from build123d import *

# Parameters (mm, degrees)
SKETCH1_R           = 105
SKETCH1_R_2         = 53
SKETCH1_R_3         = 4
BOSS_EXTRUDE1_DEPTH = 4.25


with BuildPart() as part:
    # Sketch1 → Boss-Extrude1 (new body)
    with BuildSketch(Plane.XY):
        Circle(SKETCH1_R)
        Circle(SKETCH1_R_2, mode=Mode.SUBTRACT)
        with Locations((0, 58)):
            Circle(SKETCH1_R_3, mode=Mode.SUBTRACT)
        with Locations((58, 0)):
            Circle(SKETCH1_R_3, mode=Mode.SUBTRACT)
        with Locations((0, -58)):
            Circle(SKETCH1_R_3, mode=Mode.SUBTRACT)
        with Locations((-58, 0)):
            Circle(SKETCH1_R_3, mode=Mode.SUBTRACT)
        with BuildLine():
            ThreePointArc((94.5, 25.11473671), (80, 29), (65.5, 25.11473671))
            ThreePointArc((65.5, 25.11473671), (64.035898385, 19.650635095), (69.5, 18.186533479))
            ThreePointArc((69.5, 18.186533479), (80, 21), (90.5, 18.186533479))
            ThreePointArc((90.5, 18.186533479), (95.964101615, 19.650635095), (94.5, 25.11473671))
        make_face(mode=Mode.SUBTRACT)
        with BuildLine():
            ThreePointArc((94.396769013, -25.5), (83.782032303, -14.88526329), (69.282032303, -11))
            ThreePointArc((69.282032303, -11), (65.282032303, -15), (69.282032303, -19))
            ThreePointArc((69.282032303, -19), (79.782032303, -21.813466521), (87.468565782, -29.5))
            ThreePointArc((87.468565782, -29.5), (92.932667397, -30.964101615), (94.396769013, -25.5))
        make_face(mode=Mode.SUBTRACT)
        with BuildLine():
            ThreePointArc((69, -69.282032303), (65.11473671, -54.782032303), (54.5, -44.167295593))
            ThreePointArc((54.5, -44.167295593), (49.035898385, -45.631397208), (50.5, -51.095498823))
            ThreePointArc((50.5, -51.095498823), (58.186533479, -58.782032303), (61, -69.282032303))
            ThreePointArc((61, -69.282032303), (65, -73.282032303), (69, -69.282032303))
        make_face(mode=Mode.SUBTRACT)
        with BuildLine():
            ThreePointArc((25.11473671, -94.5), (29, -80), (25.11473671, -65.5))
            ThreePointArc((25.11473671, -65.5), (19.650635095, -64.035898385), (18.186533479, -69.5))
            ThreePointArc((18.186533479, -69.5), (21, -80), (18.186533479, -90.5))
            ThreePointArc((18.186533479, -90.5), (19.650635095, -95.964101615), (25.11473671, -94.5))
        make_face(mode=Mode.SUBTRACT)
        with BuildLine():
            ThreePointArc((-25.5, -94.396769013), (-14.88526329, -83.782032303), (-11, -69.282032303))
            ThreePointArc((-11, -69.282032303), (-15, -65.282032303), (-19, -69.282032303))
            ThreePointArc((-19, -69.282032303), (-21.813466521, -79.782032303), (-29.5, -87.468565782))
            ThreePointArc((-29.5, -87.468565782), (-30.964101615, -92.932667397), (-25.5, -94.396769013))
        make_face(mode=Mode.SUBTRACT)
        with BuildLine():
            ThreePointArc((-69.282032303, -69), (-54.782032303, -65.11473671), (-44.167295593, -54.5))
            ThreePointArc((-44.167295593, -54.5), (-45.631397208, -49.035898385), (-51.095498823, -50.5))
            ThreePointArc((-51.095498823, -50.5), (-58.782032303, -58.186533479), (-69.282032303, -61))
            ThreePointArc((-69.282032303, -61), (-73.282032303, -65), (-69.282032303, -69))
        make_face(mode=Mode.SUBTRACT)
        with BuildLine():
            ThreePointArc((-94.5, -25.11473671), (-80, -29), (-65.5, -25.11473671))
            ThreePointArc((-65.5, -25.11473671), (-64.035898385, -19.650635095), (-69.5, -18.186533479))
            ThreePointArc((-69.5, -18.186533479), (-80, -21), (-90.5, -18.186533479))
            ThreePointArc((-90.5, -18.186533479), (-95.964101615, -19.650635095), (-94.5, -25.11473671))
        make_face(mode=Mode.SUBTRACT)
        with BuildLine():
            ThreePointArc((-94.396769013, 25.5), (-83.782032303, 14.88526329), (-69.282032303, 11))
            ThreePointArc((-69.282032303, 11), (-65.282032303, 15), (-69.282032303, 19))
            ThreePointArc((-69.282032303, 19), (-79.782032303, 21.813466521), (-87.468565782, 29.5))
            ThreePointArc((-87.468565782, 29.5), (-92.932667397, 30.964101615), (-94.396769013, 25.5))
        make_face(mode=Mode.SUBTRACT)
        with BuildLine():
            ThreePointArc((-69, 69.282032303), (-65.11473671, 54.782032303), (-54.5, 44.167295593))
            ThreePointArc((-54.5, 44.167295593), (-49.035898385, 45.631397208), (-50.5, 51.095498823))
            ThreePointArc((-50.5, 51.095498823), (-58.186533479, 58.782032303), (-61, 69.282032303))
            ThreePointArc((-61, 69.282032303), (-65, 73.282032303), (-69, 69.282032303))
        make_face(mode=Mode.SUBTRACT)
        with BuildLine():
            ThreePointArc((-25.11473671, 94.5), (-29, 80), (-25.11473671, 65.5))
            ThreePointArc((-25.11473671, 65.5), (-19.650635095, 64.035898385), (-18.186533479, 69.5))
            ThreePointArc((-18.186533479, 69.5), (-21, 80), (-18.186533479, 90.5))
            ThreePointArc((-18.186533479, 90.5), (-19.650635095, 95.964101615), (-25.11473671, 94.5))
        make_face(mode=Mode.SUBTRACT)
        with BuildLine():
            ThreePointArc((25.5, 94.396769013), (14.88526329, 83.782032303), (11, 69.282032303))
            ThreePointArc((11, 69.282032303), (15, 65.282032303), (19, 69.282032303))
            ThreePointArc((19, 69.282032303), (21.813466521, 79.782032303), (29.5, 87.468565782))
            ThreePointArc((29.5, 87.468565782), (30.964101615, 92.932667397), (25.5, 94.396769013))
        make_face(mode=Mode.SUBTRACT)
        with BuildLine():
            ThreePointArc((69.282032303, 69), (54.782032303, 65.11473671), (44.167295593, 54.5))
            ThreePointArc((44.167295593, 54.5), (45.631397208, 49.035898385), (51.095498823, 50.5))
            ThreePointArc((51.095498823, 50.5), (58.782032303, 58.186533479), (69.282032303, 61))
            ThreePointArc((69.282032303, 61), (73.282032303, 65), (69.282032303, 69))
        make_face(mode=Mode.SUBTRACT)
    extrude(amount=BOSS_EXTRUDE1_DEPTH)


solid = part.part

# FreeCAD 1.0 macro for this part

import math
import FreeCAD as App
import Part
import Sketcher

doc = App.newDocument("Part")
body = doc.addObject("PartDesign::Body", "Body")

# Sketch on XY plane
sketch1 = doc.addObject("Sketcher::SketchObject", "Sketch")
body.addObject(sketch1)
sketch1.AttachmentSupport = (doc.XY_Plane, [""])
sketch1.MapMode = "FlatFace"
sketch1.addGeometry(Part.Circle(App.Vector(0, 0, 0), App.Vector(0, 0, 1), 105), False)
sketch1.addGeometry(Part.ArcOfCircle(Part.Circle(App.Vector(-69.3, -40, 0), App.Vector(0, 0, 1), 29), math.radians(-90), math.radians(-30)), False)
sketch1.addGeometry(Part.ArcOfCircle(Part.Circle(App.Vector(-69.3, -65, 0), App.Vector(0, 0, 1), 4), math.radians(90), math.radians(270)), False)
sketch1.addGeometry(Part.ArcOfCircle(Part.Circle(App.Vector(-69.3, -40, 0), App.Vector(0, 0, 1), 21), math.radians(-90), math.radians(-30)), False)
sketch1.addGeometry(Part.ArcOfCircle(Part.Circle(App.Vector(-47.6, -52.5, 0), App.Vector(0, 0, 1), 4), math.radians(-30), math.radians(150)), False)
sketch1.addGeometry(Part.ArcOfCircle(Part.Circle(App.Vector(-40, -69.3, 0), App.Vector(0, 0, 1), 29), math.radians(-60), math.radians(0)), False)
sketch1.addGeometry(Part.ArcOfCircle(Part.Circle(App.Vector(-27.5, -90.9, 0), App.Vector(0, 0, 1), 4), math.radians(120), math.radians(300)), False)
sketch1.addGeometry(Part.ArcOfCircle(Part.Circle(App.Vector(-40, -69.3, 0), App.Vector(0, 0, 1), 21), math.radians(-60), math.radians(0)), False)
sketch1.addGeometry(Part.ArcOfCircle(Part.Circle(App.Vector(-15, -69.3, 0), App.Vector(0, 0, 1), 4), math.radians(0), math.radians(180)), False)
sketch1.addGeometry(Part.ArcOfCircle(Part.Circle(App.Vector(-80, 0, 0), App.Vector(0, 0, 1), 29), math.radians(-120), math.radians(-60)), False)
sketch1.addGeometry(Part.ArcOfCircle(Part.Circle(App.Vector(-92.5, -21.7, 0), App.Vector(0, 0, 1), 4), math.radians(60), math.radians(240)), False)
sketch1.addGeometry(Part.ArcOfCircle(Part.Circle(App.Vector(-80, 0, 0), App.Vector(0, 0, 1), 21), math.radians(-120), math.radians(-60)), False)
sketch1.addGeometry(Part.ArcOfCircle(Part.Circle(App.Vector(-67.5, -21.7, 0), App.Vector(0, 0, 1), 4), math.radians(-60), math.radians(120)), False)
sketch1.addGeometry(Part.ArcOfCircle(Part.Circle(App.Vector(0, -80, 0), App.Vector(0, 0, 1), 29), math.radians(-30), math.radians(30)), False)
sketch1.addGeometry(Part.ArcOfCircle(Part.Circle(App.Vector(21.7, -92.5, 0), App.Vector(0, 0, 1), 4), math.radians(150), math.radians(330)), False)
sketch1.addGeometry(Part.ArcOfCircle(Part.Circle(App.Vector(0, -80, 0), App.Vector(0, 0, 1), 21), math.radians(-30), math.radians(30)), False)
sketch1.addGeometry(Part.ArcOfCircle(Part.Circle(App.Vector(21.7, -67.5, 0), App.Vector(0, 0, 1), 4), math.radians(30), math.radians(210)), False)
sketch1.addGeometry(Part.Circle(App.Vector(0, -58, 0), App.Vector(0, 0, 1), 4), False)
sketch1.addGeometry(Part.ArcOfCircle(Part.Circle(App.Vector(40, -69.3, 0), App.Vector(0, 0, 1), 29), math.radians(0), math.radians(60)), False)
sketch1.addGeometry(Part.ArcOfCircle(Part.Circle(App.Vector(65, -69.3, 0), App.Vector(0, 0, 1), 4), math.radians(180), math.radians(360)), False)
sketch1.addGeometry(Part.ArcOfCircle(Part.Circle(App.Vector(40, -69.3, 0), App.Vector(0, 0, 1), 21), math.radians(0), math.radians(60)), False)
sketch1.addGeometry(Part.ArcOfCircle(Part.Circle(App.Vector(52.5, -47.6, 0), App.Vector(0, 0, 1), 4), math.radians(60), math.radians(240)), False)
sketch1.addGeometry(Part.ArcOfCircle(Part.Circle(App.Vector(69.3, -40, 0), App.Vector(0, 0, 1), 29), math.radians(30), math.radians(90)), False)
sketch1.addGeometry(Part.ArcOfCircle(Part.Circle(App.Vector(90.9, -27.5, 0), App.Vector(0, 0, 1), 4), math.radians(-150), math.radians(30)), False)
sketch1.addGeometry(Part.ArcOfCircle(Part.Circle(App.Vector(69.3, -40, 0), App.Vector(0, 0, 1), 21), math.radians(30), math.radians(90)), False)
sketch1.addGeometry(Part.ArcOfCircle(Part.Circle(App.Vector(69.3, -15, 0), App.Vector(0, 0, 1), 4), math.radians(90), math.radians(270)), False)
sketch1.addGeometry(Part.ArcOfCircle(Part.Circle(App.Vector(-69.3, 40, 0), App.Vector(0, 0, 1), 29), math.radians(-150), math.radians(-90)), False)
sketch1.addGeometry(Part.ArcOfCircle(Part.Circle(App.Vector(-90.9, 27.5, 0), App.Vector(0, 0, 1), 4), math.radians(30), math.radians(210)), False)
sketch1.addGeometry(Part.ArcOfCircle(Part.Circle(App.Vector(-69.3, 40, 0), App.Vector(0, 0, 1), 21), math.radians(-150), math.radians(-90)), False)
sketch1.addGeometry(Part.ArcOfCircle(Part.Circle(App.Vector(-69.3, 15, 0), App.Vector(0, 0, 1), 4), math.radians(-90), math.radians(90)), False)
sketch1.addGeometry(Part.Circle(App.Vector(-58, 0, 0), App.Vector(0, 0, 1), 4), False)
sketch1.addGeometry(Part.ArcOfCircle(Part.Circle(App.Vector(-40, 69.3, 0), App.Vector(0, 0, 1), 29), math.radians(180), math.radians(240)), False)
sketch1.addGeometry(Part.ArcOfCircle(Part.Circle(App.Vector(-65, 69.3, 0), App.Vector(0, 0, 1), 4), math.radians(0), math.radians(180)), False)
sketch1.addGeometry(Part.ArcOfCircle(Part.Circle(App.Vector(-40, 69.3, 0), App.Vector(0, 0, 1), 21), math.radians(-180), math.radians(-120)), False)
sketch1.addGeometry(Part.ArcOfCircle(Part.Circle(App.Vector(-52.5, 47.6, 0), App.Vector(0, 0, 1), 4), math.radians(-120), math.radians(60)), False)
sketch1.addGeometry(Part.ArcOfCircle(Part.Circle(App.Vector(0, 80, 0), App.Vector(0, 0, 1), 29), math.radians(150), math.radians(210)), False)
sketch1.addGeometry(Part.ArcOfCircle(Part.Circle(App.Vector(-21.7, 92.5, 0), App.Vector(0, 0, 1), 4), math.radians(-30), math.radians(150)), False)
sketch1.addGeometry(Part.ArcOfCircle(Part.Circle(App.Vector(0, 80, 0), App.Vector(0, 0, 1), 21), math.radians(150), math.radians(210)), False)
sketch1.addGeometry(Part.ArcOfCircle(Part.Circle(App.Vector(-21.7, 67.5, 0), App.Vector(0, 0, 1), 4), math.radians(-150), math.radians(30)), False)
sketch1.addGeometry(Part.Circle(App.Vector(0, 0, 0), App.Vector(0, 0, 1), 53), False)
sketch1.addGeometry(Part.Circle(App.Vector(58, 0, 0), App.Vector(0, 0, 1), 4), False)
sketch1.addGeometry(Part.ArcOfCircle(Part.Circle(App.Vector(80, 0, 0), App.Vector(0, 0, 1), 29), math.radians(60), math.radians(120)), False)
sketch1.addGeometry(Part.ArcOfCircle(Part.Circle(App.Vector(92.5, 21.7, 0), App.Vector(0, 0, 1), 4), math.radians(-120), math.radians(60)), False)
sketch1.addGeometry(Part.ArcOfCircle(Part.Circle(App.Vector(80, 0, 0), App.Vector(0, 0, 1), 21), math.radians(60), math.radians(120)), False)
sketch1.addGeometry(Part.ArcOfCircle(Part.Circle(App.Vector(67.5, 21.7, 0), App.Vector(0, 0, 1), 4), math.radians(120), math.radians(300)), False)
sketch1.addGeometry(Part.Circle(App.Vector(0, 58, 0), App.Vector(0, 0, 1), 4), False)
sketch1.addGeometry(Part.ArcOfCircle(Part.Circle(App.Vector(40, 69.3, 0), App.Vector(0, 0, 1), 29), math.radians(120), math.radians(180)), False)
sketch1.addGeometry(Part.ArcOfCircle(Part.Circle(App.Vector(27.5, 90.9, 0), App.Vector(0, 0, 1), 4), math.radians(-60), math.radians(120)), False)
sketch1.addGeometry(Part.ArcOfCircle(Part.Circle(App.Vector(40, 69.3, 0), App.Vector(0, 0, 1), 21), math.radians(120), math.radians(180)), False)
sketch1.addGeometry(Part.ArcOfCircle(Part.Circle(App.Vector(15, 69.3, 0), App.Vector(0, 0, 1), 4), math.radians(180), math.radians(360)), False)
sketch1.addGeometry(Part.ArcOfCircle(Part.Circle(App.Vector(69.3, 40, 0), App.Vector(0, 0, 1), 29), math.radians(90), math.radians(150)), False)
sketch1.addGeometry(Part.ArcOfCircle(Part.Circle(App.Vector(69.3, 65, 0), App.Vector(0, 0, 1), 4), math.radians(-90), math.radians(90)), False)
sketch1.addGeometry(Part.ArcOfCircle(Part.Circle(App.Vector(69.3, 40, 0), App.Vector(0, 0, 1), 21), math.radians(90), math.radians(150)), False)
sketch1.addGeometry(Part.ArcOfCircle(Part.Circle(App.Vector(47.6, 52.5, 0), App.Vector(0, 0, 1), 4), math.radians(150), math.radians(330)), False)
sketch1.addConstraint(Sketcher.Constraint("Tangent", 1, 1, 2, 2))
sketch1.addConstraint(Sketcher.Constraint("Tangent", 2, 1, 3, 1))
sketch1.addConstraint(Sketcher.Constraint("Tangent", 3, 2, 4, 2))
sketch1.addConstraint(Sketcher.Constraint("Tangent", 4, 1, 1, 2))
sketch1.addConstraint(Sketcher.Constraint("Tangent", 5, 1, 6, 2))
sketch1.addConstraint(Sketcher.Constraint("Tangent", 6, 1, 7, 1))
sketch1.addConstraint(Sketcher.Constraint("Tangent", 7, 2, 8, 2))
sketch1.addConstraint(Sketcher.Constraint("Tangent", 8, 1, 5, 2))
sketch1.addConstraint(Sketcher.Constraint("Tangent", 9, 1, 10, 2))
sketch1.addConstraint(Sketcher.Constraint("Tangent", 10, 1, 11, 1))
sketch1.addConstraint(Sketcher.Constraint("Tangent", 11, 2, 12, 2))
sketch1.addConstraint(Sketcher.Constraint("Tangent", 12, 1, 9, 2))
sketch1.addConstraint(Sketcher.Constraint("Tangent", 13, 1, 14, 2))
sketch1.addConstraint(Sketcher.Constraint("Tangent", 14, 1, 15, 1))
sketch1.addConstraint(Sketcher.Constraint("Tangent", 15, 2, 16, 2))
sketch1.addConstraint(Sketcher.Constraint("Tangent", 16, 1, 13, 2))
sketch1.addConstraint(Sketcher.Constraint("Tangent", 18, 1, 19, 2))
sketch1.addConstraint(Sketcher.Constraint("Tangent", 19, 1, 20, 1))
sketch1.addConstraint(Sketcher.Constraint("Tangent", 20, 2, 21, 2))
sketch1.addConstraint(Sketcher.Constraint("Tangent", 21, 1, 18, 2))
sketch1.addConstraint(Sketcher.Constraint("Tangent", 22, 1, 23, 2))
sketch1.addConstraint(Sketcher.Constraint("Tangent", 23, 1, 24, 1))
sketch1.addConstraint(Sketcher.Constraint("Tangent", 24, 2, 25, 2))
sketch1.addConstraint(Sketcher.Constraint("Tangent", 25, 1, 22, 2))
sketch1.addConstraint(Sketcher.Constraint("Tangent", 26, 1, 27, 2))
sketch1.addConstraint(Sketcher.Constraint("Tangent", 27, 1, 28, 1))
sketch1.addConstraint(Sketcher.Constraint("Tangent", 28, 2, 29, 2))
sketch1.addConstraint(Sketcher.Constraint("Tangent", 29, 1, 26, 2))
sketch1.addConstraint(Sketcher.Constraint("Tangent", 31, 1, 32, 2))
sketch1.addConstraint(Sketcher.Constraint("Tangent", 32, 1, 33, 1))
sketch1.addConstraint(Sketcher.Constraint("Tangent", 33, 2, 34, 2))
sketch1.addConstraint(Sketcher.Constraint("Tangent", 34, 1, 31, 2))
sketch1.addConstraint(Sketcher.Constraint("Tangent", 35, 1, 36, 2))
sketch1.addConstraint(Sketcher.Constraint("Tangent", 36, 1, 37, 1))
sketch1.addConstraint(Sketcher.Constraint("Tangent", 37, 2, 38, 2))
sketch1.addConstraint(Sketcher.Constraint("Tangent", 38, 1, 35, 2))
sketch1.addConstraint(Sketcher.Constraint("Tangent", 41, 1, 42, 2))
sketch1.addConstraint(Sketcher.Constraint("Tangent", 42, 1, 43, 1))
sketch1.addConstraint(Sketcher.Constraint("Tangent", 43, 2, 44, 2))
sketch1.addConstraint(Sketcher.Constraint("Tangent", 44, 1, 41, 2))
sketch1.addConstraint(Sketcher.Constraint("Tangent", 46, 1, 47, 2))
sketch1.addConstraint(Sketcher.Constraint("Tangent", 47, 1, 48, 1))
sketch1.addConstraint(Sketcher.Constraint("Tangent", 48, 2, 49, 2))
sketch1.addConstraint(Sketcher.Constraint("Tangent", 49, 1, 46, 2))
sketch1.addConstraint(Sketcher.Constraint("Tangent", 50, 1, 51, 2))
sketch1.addConstraint(Sketcher.Constraint("Tangent", 51, 1, 52, 1))
sketch1.addConstraint(Sketcher.Constraint("Tangent", 52, 2, 53, 2))
sketch1.addConstraint(Sketcher.Constraint("Tangent", 53, 1, 50, 2))
sketch1.addConstraint(Sketcher.Constraint("Coincident", 0, 3, -1, 1))
sketch1.addConstraint(Sketcher.Constraint("Coincident", 39, 3, -1, 1))
sketch1.addConstraint(Sketcher.Constraint("Coincident", 3, 3, 1, 3))
sketch1.addConstraint(Sketcher.Constraint("Coincident", 7, 3, 5, 3))
sketch1.addConstraint(Sketcher.Constraint("Coincident", 11, 3, 9, 3))
sketch1.addConstraint(Sketcher.Constraint("Coincident", 15, 3, 13, 3))
sketch1.addConstraint(Sketcher.Constraint("Coincident", 20, 3, 18, 3))
sketch1.addConstraint(Sketcher.Constraint("Coincident", 24, 3, 22, 3))
sketch1.addConstraint(Sketcher.Constraint("Coincident", 28, 3, 26, 3))
sketch1.addConstraint(Sketcher.Constraint("Coincident", 33, 3, 31, 3))
sketch1.addConstraint(Sketcher.Constraint("Coincident", 37, 3, 35, 3))
sketch1.addConstraint(Sketcher.Constraint("Coincident", 43, 3, 41, 3))
sketch1.addConstraint(Sketcher.Constraint("Coincident", 48, 3, 46, 3))
sketch1.addConstraint(Sketcher.Constraint("Coincident", 52, 3, 50, 3))
sketch1.addConstraint(Sketcher.Constraint("Equal", 1, 5))
sketch1.addConstraint(Sketcher.Constraint("Equal", 4, 6))
sketch1.addConstraint(Sketcher.Constraint("Equal", 5, 9))
sketch1.addConstraint(Sketcher.Constraint("Equal", 8, 10))
sketch1.addConstraint(Sketcher.Constraint("Equal", 9, 13))
sketch1.addConstraint(Sketcher.Constraint("Equal", 12, 14))
sketch1.addConstraint(Sketcher.Constraint("Equal", 16, 17))
sketch1.addConstraint(Sketcher.Constraint("Equal", 13, 18))
sketch1.addConstraint(Sketcher.Constraint("Equal", 17, 19))
sketch1.addConstraint(Sketcher.Constraint("Equal", 18, 22))
sketch1.addConstraint(Sketcher.Constraint("Equal", 21, 23))
sketch1.addConstraint(Sketcher.Constraint("Equal", 22, 26))
sketch1.addConstraint(Sketcher.Constraint("Equal", 25, 27))
sketch1.addConstraint(Sketcher.Constraint("Equal", 29, 30))
sketch1.addConstraint(Sketcher.Constraint("Equal", 26, 31))
sketch1.addConstraint(Sketcher.Constraint("Equal", 30, 32))
sketch1.addConstraint(Sketcher.Constraint("Equal", 31, 35))
sketch1.addConstraint(Sketcher.Constraint("Equal", 34, 36))
sketch1.addConstraint(Sketcher.Constraint("Equal", 38, 40))
sketch1.addConstraint(Sketcher.Constraint("Equal", 35, 41))
sketch1.addConstraint(Sketcher.Constraint("Equal", 40, 42))
sketch1.addConstraint(Sketcher.Constraint("Equal", 44, 45))
sketch1.addConstraint(Sketcher.Constraint("Equal", 41, 46))
sketch1.addConstraint(Sketcher.Constraint("Equal", 45, 47))
sketch1.addConstraint(Sketcher.Constraint("Equal", 46, 50))
sketch1.addConstraint(Sketcher.Constraint("Equal", 49, 51))
sketch1.addConstraint(Sketcher.Constraint("Symmetric", 22, 3, 26, 3, -1, 1))
sketch1.addConstraint(Sketcher.Constraint("Symmetric", 18, 3, 31, 3, -1, 1))
sketch1.addConstraint(Sketcher.Constraint("Symmetric", 13, 3, 35, 3, -1, 1))
sketch1.addConstraint(Sketcher.Constraint("Symmetric", 30, 3, 40, 3, -1, 1))
sketch1.addConstraint(Sketcher.Constraint("Symmetric", 9, 3, 41, 3, -1, 1))
sketch1.addConstraint(Sketcher.Constraint("Symmetric", 17, 3, 45, 3, -1, 1))
sketch1.addConstraint(Sketcher.Constraint("Symmetric", 5, 3, 46, 3, -1, 1))
sketch1.addConstraint(Sketcher.Constraint("Symmetric", 1, 3, 50, 3, -1, 1))
sketch1.addConstraint(Sketcher.Constraint("Symmetric", 5, 3, 18, 3, -2))
sketch1.addConstraint(Sketcher.Constraint("Symmetric", 1, 3, 22, 3, -2))
sketch1.addConstraint(Sketcher.Constraint("PointOnObject", 9, 3, -1))
sketch1.addConstraint(Sketcher.Constraint("PointOnObject", 13, 3, -2))
sketch1.addConstraint(Sketcher.Constraint("PointOnObject", 17, 3, -2))
sketch1.addConstraint(Sketcher.Constraint("PointOnObject", 30, 3, -1))
sketch1.addConstraint(Sketcher.Constraint("Horizontal", 7, 3, 8, 3))
sketch1.addConstraint(Sketcher.Constraint("Horizontal", 10, 3, 12, 3))
sketch1.addConstraint(Sketcher.Constraint("Horizontal", 18, 3, 19, 3))
sketch1.addConstraint(Sketcher.Constraint("Horizontal", 31, 3, 32, 3))
sketch1.addConstraint(Sketcher.Constraint("Horizontal", 42, 3, 44, 3))
sketch1.addConstraint(Sketcher.Constraint("Horizontal", 48, 3, 49, 3))
sketch1.addConstraint(Sketcher.Constraint("Vertical", 1, 3, 2, 3))
sketch1.addConstraint(Sketcher.Constraint("Vertical", 14, 3, 16, 3))
sketch1.addConstraint(Sketcher.Constraint("Vertical", 24, 3, 25, 3))
sketch1.addConstraint(Sketcher.Constraint("Vertical", 28, 3, 29, 3))
sketch1.addConstraint(Sketcher.Constraint("Vertical", 36, 3, 38, 3))
sketch1.addConstraint(Sketcher.Constraint("Vertical", 50, 3, 51, 3))
sketch1.addConstraint(Sketcher.Constraint("Diameter", 0, 210.0))
sketch1.addConstraint(Sketcher.Constraint("Diameter", 17, 8.0))
sketch1.addConstraint(Sketcher.Constraint("Diameter", 39, 106.0))
sketch1.addConstraint(Sketcher.Constraint("Radius", 1, 29.0))
sketch1.addConstraint(Sketcher.Constraint("DistanceY", 1, 3, -1, 1, 40.0))
sketch1.addConstraint(Sketcher.Constraint("DistanceX", 5, 3, -1, 1, 40.0))
sketch1.addConstraint(Sketcher.Constraint("DistanceX", 9, 3, -1, 1, 80.0))
sketch1.addConstraint(Sketcher.Constraint("DistanceY", 13, 3, -1, 1, 80.0))
sketch1.addConstraint(Sketcher.Constraint("DistanceY", 17, 3, -1, 1, 58.0))
sketch1.addConstraint(Sketcher.Constraint("DistanceX", 30, 3, -1, 1, 58.0))
sketch1.addConstraint(Sketcher.Constraint("DistanceY", 4, 3, -1, 1, 52.5))
sketch1.addConstraint(Sketcher.Constraint("DistanceX", 6, 3, -1, 1, 27.5))
sketch1.addConstraint(Sketcher.Constraint("DistanceX", 10, 3, -1, 1, 92.5))
sketch1.addConstraint(Sketcher.Constraint("DistanceY", 14, 3, -1, 1, 92.5))
sketch1.addConstraint(Sketcher.Constraint("DistanceX", -1, 1, 21, 3, 52.5))
sketch1.addConstraint(Sketcher.Constraint("DistanceY", 23, 3, -1, 1, 27.5))
sketch1.addConstraint(Sketcher.Constraint("DistanceY", -1, 1, 27, 3, 27.5))
sketch1.addConstraint(Sketcher.Constraint("DistanceX", 34, 3, -1, 1, 52.5))
sketch1.addConstraint(Sketcher.Constraint("DistanceY", -1, 1, 36, 3, 92.5))
sketch1.addConstraint(Sketcher.Constraint("DistanceX", -1, 1, 42, 3, 92.5))
sketch1.addConstraint(Sketcher.Constraint("DistanceX", -1, 1, 47, 3, 27.5))
sketch1.addConstraint(Sketcher.Constraint("DistanceY", -1, 1, 53, 3, 52.5))
sketch1.addConstraint(Sketcher.Constraint("DistanceX", 3, 2, -1, 1, 51.095499))
sketch1.addConstraint(Sketcher.Constraint("DistanceY", 20, 2, -1, 1, 51.095499))
pad1 = doc.addObject("PartDesign::Pad", "Pad")
body.addObject(pad1)
pad1.Profile = sketch1
pad1.Length = 4.25

doc.recompute()
